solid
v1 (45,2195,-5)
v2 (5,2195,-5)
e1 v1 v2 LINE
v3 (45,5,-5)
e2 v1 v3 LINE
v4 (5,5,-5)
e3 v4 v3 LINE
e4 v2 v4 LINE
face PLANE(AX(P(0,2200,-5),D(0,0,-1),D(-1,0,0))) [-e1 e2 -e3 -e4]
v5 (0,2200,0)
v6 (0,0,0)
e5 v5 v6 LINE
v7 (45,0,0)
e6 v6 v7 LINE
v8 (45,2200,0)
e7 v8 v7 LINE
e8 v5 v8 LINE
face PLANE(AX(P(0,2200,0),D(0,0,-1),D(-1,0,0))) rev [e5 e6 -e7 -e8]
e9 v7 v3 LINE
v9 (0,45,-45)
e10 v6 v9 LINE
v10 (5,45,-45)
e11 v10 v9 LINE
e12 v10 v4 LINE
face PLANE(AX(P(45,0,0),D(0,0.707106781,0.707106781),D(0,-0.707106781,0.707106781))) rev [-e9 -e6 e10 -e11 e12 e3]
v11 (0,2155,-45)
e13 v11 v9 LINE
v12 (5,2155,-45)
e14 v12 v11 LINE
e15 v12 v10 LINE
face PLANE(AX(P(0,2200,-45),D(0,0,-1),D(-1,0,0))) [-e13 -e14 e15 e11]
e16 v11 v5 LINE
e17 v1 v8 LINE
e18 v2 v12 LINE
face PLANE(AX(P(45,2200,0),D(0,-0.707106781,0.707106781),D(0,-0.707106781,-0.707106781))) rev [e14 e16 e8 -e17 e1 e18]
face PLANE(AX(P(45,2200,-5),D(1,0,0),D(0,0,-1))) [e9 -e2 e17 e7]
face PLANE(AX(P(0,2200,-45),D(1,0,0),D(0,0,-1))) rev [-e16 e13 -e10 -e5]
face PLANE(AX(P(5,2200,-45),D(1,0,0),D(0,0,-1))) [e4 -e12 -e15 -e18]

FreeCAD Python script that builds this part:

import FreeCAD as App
import Part
import Sketcher
from FreeCAD import Vector

doc = App.newDocument("Part")
body = doc.addObject("PartDesign::Body", "Body")

# Sketch on XZ plane
sketch1 = body.newObject("Sketcher::SketchObject", "Sketch")
sketch1.AttachmentSupport = (doc.getObject("XZ_Plane"), [""])
sketch1.MapMode = "FlatFace"
sketch1.addGeometry([
    Part.LineSegment(Vector(0, -45, 0), Vector(0, 0, 0)),  # 0
    Part.LineSegment(Vector(0, 0, 0), Vector(45, 0, 0)),  # 1
    Part.LineSegment(Vector(45, 0, 0), Vector(45, -5, 0)),  # 2
    Part.LineSegment(Vector(45, -5, 0), Vector(5, -5, 0)),  # 3
    Part.LineSegment(Vector(5, -5, 0), Vector(5, -45, 0)),  # 4
    Part.LineSegment(Vector(5, -45, 0), Vector(0, -45, 0)),  # 5
], False)
sketch1.addConstraint([
    Sketcher.Constraint("Coincident", 0, 2, 1, 1),
    Sketcher.Constraint("Coincident", 1, 2, 2, 1),
    Sketcher.Constraint("Coincident", 2, 2, 3, 1),
    Sketcher.Constraint("Coincident", 3, 2, 4, 1),
    Sketcher.Constraint("Coincident", 4, 2, 5, 1),
    Sketcher.Constraint("Coincident", 5, 2, 0, 1),
    Sketcher.Constraint("Vertical", 0),
    Sketcher.Constraint("Horizontal", 1),
    Sketcher.Constraint("Vertical", 2),
    Sketcher.Constraint("Horizontal", 3),
    Sketcher.Constraint("Vertical", 4),
    Sketcher.Constraint("Horizontal", 5),
    Sketcher.Constraint("Coincident", 0, 2, -1, 1),
    Sketcher.Constraint("Equal", 1, 0),
    Sketcher.Constraint("Equal", 5, 2),
    Sketcher.Constraint("DistanceX", 1, 1, 1, 2, 45.0),
    Sketcher.Constraint("DistanceX", 3, 2, 3, 1, 40.0),
])
pad1 = body.newObject("PartDesign::Pad", "Pad")
pad1.Profile = sketch1
pad1.Length = 2200
pad1.Reversed = True

# Sketch on YZ plane
sketch2 = body.newObject("Sketcher::SketchObject", "Sketch001")
sketch2.AttachmentSupport = (doc.getObject("YZ_Plane"), [""])
sketch2.MapMode = "FlatFace"
sketch2.addGeometry([
    Part.LineSegment(Vector(0, 0, 0), Vector(45, -45, 0)),  # 0
    Part.LineSegment(Vector(45, -45, 0), Vector(0, -45, 0)),  # 1
    Part.LineSegment(Vector(0, -45, 0), Vector(0, 0, 0)),  # 2
    Part.LineSegment(Vector(2200, 0, 0), Vector(2200, -45, 0)),  # 3
    Part.LineSegment(Vector(2200, -45, 0), Vector(2155, -45, 0)),  # 4
    Part.LineSegment(Vector(2155, -45, 0), Vector(2200, 0, 0)),  # 5
], False)
sketch2.addConstraint([
    Sketcher.Constraint("Coincident", 0, 2, 1, 1),
    Sketcher.Constraint("Coincident", 1, 2, 2, 1),
    Sketcher.Constraint("Coincident", 2, 2, 0, 1),
    Sketcher.Constraint("Coincident", 3, 2, 4, 1),
    Sketcher.Constraint("Coincident", 4, 2, 5, 1),
    Sketcher.Constraint("Coincident", 5, 2, 3, 1),
    Sketcher.Constraint("Horizontal", 1),
    Sketcher.Constraint("Vertical", 2),
    Sketcher.Constraint("Vertical", 3),
    Sketcher.Constraint("Horizontal", 4),
    Sketcher.Constraint("Coincident", 2, 2, -1, 1),
    Sketcher.Constraint("PointOnObject", 5, 2, -1),
    Sketcher.Constraint("Perpendicular", 0, 5),
    Sketcher.Constraint("Horizontal", 1, 2, 3, 2),
    Sketcher.Constraint("Equal", 1, 4),
    Sketcher.Constraint("DistanceX", 1, 2, 1, 1, 45.0),
    Sketcher.Constraint("DistanceX", -1, 1, 3, 2, 2200.0),
])
pocket1 = body.newObject("PartDesign::Pocket", "Pocket")
pocket1.Profile = sketch2
pocket1.Type = "ThroughAll"
pocket1.Reversed = True

doc.recompute()
